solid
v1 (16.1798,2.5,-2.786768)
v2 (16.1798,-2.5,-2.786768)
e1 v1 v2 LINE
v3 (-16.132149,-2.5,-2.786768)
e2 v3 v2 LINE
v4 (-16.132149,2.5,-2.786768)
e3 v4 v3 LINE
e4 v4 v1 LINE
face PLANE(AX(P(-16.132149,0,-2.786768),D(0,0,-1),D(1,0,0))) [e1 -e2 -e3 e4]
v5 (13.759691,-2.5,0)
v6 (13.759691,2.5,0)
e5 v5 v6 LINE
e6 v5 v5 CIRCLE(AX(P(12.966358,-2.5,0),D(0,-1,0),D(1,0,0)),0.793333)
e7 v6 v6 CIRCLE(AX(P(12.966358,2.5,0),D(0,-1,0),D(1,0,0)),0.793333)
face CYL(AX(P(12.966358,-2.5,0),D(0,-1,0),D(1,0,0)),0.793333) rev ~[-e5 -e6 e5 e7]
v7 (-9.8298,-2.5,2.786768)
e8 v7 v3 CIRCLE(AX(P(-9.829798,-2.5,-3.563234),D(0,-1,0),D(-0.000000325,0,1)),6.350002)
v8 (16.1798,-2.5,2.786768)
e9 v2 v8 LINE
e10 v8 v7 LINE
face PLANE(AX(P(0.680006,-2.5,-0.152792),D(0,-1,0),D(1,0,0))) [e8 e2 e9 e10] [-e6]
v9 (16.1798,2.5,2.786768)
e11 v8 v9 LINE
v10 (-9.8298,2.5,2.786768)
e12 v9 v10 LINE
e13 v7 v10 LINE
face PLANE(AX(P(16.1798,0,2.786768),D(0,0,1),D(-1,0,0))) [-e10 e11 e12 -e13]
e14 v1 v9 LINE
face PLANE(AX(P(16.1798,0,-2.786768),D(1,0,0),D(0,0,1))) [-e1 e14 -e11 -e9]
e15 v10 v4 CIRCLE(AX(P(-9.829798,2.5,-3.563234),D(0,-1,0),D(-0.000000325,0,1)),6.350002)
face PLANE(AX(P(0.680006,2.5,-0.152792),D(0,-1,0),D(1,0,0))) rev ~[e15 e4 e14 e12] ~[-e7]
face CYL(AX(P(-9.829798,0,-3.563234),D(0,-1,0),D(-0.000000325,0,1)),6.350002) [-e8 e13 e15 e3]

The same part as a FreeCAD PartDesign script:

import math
import FreeCAD as App
import Part
import Sketcher

doc = App.newDocument("Part")
body = doc.addObject("PartDesign::Body", "Body")

# Sketch on XZ plane
sketch1 = body.newObject("Sketcher::SketchObject", "Sketch")
sketch1.AttachmentSupport = (doc.getObject("XZ_Plane"), [""])
sketch1.MapMode = "FlatFace"
sketch1.addGeometry(Part.ArcOfCircle(Part.Circle(App.Vector(-10, -4, 0), App.Vector(0, 0, 1), 6), math.radians(90), math.radians(173)), False)
sketch1.addGeometry(Part.LineSegment(App.Vector(-16, -3, 0), App.Vector(16, -3, 0)), False)
sketch1.addGeometry(Part.LineSegment(App.Vector(16, -3, 0), App.Vector(16, 3, 0)), False)
sketch1.addGeometry(Part.LineSegment(App.Vector(16, 3, 0), App.Vector(-10, 3, 0)), False)
sketch1.addConstraint(Sketcher.Constraint("Coincident", 0, 2, 1, 1))
sketch1.addConstraint(Sketcher.Constraint("Coincident", 1, 2, 2, 1))
sketch1.addConstraint(Sketcher.Constraint("Coincident", 2, 2, 3, 1))
sketch1.addConstraint(Sketcher.Constraint("Tangent", 3, 2, 0, 1))
sketch1.addConstraint(Sketcher.Constraint("Horizontal", 1))
sketch1.addConstraint(Sketcher.Constraint("Vertical", 2))
sketch1.addConstraint(Sketcher.Constraint("Horizontal", 3))
sketch1.addConstraint(Sketcher.Constraint("DistanceX", 3, 2, 3, 1, 26.0096))
sketch1.addConstraint(Sketcher.Constraint("Radius", 0, 6.350002))
sketch1.addConstraint(Sketcher.Constraint("DistanceX", 1, 1, 1, 2, 32.311949))
sketch1.addConstraint(Sketcher.Constraint("DistanceX", -1, 1, 1, 2, 16.1798))
sketch1.addConstraint(Sketcher.Constraint("DistanceY", 0, 2, -1, 1, 2.786768))
pad1 = body.newObject("PartDesign::Pad", "Pad")
pad1.Profile = sketch1
pad1.Length = 5
pad1.Midplane = True

# Sketch on XZ plane
sketch2 = body.newObject("Sketcher::SketchObject", "Sketch001")
sketch2.AttachmentSupport = (doc.getObject("XZ_Plane"), [""])
sketch2.MapMode = "FlatFace"
sketch2.AttachmentOffset = App.Placement(App.Vector(0, 0, 2.5), App.Rotation())
sketch2.addGeometry(Part.Circle(App.Vector(13, 0, 0), App.Vector(0, 0, 1), 0.8), False)
sketch2.addConstraint(Sketcher.Constraint("PointOnObject", 0, 3, -1))
sketch2.addConstraint(Sketcher.Constraint("Diameter", 0, 1.586666))
sketch2.addConstraint(Sketcher.Constraint("DistanceX", -1, 1, 0, 3, 12.966358))
pocket1 = body.newObject("PartDesign::Pocket", "Pocket")
pocket1.Profile = sketch2
pocket1.Length = 25

doc.recompute()
